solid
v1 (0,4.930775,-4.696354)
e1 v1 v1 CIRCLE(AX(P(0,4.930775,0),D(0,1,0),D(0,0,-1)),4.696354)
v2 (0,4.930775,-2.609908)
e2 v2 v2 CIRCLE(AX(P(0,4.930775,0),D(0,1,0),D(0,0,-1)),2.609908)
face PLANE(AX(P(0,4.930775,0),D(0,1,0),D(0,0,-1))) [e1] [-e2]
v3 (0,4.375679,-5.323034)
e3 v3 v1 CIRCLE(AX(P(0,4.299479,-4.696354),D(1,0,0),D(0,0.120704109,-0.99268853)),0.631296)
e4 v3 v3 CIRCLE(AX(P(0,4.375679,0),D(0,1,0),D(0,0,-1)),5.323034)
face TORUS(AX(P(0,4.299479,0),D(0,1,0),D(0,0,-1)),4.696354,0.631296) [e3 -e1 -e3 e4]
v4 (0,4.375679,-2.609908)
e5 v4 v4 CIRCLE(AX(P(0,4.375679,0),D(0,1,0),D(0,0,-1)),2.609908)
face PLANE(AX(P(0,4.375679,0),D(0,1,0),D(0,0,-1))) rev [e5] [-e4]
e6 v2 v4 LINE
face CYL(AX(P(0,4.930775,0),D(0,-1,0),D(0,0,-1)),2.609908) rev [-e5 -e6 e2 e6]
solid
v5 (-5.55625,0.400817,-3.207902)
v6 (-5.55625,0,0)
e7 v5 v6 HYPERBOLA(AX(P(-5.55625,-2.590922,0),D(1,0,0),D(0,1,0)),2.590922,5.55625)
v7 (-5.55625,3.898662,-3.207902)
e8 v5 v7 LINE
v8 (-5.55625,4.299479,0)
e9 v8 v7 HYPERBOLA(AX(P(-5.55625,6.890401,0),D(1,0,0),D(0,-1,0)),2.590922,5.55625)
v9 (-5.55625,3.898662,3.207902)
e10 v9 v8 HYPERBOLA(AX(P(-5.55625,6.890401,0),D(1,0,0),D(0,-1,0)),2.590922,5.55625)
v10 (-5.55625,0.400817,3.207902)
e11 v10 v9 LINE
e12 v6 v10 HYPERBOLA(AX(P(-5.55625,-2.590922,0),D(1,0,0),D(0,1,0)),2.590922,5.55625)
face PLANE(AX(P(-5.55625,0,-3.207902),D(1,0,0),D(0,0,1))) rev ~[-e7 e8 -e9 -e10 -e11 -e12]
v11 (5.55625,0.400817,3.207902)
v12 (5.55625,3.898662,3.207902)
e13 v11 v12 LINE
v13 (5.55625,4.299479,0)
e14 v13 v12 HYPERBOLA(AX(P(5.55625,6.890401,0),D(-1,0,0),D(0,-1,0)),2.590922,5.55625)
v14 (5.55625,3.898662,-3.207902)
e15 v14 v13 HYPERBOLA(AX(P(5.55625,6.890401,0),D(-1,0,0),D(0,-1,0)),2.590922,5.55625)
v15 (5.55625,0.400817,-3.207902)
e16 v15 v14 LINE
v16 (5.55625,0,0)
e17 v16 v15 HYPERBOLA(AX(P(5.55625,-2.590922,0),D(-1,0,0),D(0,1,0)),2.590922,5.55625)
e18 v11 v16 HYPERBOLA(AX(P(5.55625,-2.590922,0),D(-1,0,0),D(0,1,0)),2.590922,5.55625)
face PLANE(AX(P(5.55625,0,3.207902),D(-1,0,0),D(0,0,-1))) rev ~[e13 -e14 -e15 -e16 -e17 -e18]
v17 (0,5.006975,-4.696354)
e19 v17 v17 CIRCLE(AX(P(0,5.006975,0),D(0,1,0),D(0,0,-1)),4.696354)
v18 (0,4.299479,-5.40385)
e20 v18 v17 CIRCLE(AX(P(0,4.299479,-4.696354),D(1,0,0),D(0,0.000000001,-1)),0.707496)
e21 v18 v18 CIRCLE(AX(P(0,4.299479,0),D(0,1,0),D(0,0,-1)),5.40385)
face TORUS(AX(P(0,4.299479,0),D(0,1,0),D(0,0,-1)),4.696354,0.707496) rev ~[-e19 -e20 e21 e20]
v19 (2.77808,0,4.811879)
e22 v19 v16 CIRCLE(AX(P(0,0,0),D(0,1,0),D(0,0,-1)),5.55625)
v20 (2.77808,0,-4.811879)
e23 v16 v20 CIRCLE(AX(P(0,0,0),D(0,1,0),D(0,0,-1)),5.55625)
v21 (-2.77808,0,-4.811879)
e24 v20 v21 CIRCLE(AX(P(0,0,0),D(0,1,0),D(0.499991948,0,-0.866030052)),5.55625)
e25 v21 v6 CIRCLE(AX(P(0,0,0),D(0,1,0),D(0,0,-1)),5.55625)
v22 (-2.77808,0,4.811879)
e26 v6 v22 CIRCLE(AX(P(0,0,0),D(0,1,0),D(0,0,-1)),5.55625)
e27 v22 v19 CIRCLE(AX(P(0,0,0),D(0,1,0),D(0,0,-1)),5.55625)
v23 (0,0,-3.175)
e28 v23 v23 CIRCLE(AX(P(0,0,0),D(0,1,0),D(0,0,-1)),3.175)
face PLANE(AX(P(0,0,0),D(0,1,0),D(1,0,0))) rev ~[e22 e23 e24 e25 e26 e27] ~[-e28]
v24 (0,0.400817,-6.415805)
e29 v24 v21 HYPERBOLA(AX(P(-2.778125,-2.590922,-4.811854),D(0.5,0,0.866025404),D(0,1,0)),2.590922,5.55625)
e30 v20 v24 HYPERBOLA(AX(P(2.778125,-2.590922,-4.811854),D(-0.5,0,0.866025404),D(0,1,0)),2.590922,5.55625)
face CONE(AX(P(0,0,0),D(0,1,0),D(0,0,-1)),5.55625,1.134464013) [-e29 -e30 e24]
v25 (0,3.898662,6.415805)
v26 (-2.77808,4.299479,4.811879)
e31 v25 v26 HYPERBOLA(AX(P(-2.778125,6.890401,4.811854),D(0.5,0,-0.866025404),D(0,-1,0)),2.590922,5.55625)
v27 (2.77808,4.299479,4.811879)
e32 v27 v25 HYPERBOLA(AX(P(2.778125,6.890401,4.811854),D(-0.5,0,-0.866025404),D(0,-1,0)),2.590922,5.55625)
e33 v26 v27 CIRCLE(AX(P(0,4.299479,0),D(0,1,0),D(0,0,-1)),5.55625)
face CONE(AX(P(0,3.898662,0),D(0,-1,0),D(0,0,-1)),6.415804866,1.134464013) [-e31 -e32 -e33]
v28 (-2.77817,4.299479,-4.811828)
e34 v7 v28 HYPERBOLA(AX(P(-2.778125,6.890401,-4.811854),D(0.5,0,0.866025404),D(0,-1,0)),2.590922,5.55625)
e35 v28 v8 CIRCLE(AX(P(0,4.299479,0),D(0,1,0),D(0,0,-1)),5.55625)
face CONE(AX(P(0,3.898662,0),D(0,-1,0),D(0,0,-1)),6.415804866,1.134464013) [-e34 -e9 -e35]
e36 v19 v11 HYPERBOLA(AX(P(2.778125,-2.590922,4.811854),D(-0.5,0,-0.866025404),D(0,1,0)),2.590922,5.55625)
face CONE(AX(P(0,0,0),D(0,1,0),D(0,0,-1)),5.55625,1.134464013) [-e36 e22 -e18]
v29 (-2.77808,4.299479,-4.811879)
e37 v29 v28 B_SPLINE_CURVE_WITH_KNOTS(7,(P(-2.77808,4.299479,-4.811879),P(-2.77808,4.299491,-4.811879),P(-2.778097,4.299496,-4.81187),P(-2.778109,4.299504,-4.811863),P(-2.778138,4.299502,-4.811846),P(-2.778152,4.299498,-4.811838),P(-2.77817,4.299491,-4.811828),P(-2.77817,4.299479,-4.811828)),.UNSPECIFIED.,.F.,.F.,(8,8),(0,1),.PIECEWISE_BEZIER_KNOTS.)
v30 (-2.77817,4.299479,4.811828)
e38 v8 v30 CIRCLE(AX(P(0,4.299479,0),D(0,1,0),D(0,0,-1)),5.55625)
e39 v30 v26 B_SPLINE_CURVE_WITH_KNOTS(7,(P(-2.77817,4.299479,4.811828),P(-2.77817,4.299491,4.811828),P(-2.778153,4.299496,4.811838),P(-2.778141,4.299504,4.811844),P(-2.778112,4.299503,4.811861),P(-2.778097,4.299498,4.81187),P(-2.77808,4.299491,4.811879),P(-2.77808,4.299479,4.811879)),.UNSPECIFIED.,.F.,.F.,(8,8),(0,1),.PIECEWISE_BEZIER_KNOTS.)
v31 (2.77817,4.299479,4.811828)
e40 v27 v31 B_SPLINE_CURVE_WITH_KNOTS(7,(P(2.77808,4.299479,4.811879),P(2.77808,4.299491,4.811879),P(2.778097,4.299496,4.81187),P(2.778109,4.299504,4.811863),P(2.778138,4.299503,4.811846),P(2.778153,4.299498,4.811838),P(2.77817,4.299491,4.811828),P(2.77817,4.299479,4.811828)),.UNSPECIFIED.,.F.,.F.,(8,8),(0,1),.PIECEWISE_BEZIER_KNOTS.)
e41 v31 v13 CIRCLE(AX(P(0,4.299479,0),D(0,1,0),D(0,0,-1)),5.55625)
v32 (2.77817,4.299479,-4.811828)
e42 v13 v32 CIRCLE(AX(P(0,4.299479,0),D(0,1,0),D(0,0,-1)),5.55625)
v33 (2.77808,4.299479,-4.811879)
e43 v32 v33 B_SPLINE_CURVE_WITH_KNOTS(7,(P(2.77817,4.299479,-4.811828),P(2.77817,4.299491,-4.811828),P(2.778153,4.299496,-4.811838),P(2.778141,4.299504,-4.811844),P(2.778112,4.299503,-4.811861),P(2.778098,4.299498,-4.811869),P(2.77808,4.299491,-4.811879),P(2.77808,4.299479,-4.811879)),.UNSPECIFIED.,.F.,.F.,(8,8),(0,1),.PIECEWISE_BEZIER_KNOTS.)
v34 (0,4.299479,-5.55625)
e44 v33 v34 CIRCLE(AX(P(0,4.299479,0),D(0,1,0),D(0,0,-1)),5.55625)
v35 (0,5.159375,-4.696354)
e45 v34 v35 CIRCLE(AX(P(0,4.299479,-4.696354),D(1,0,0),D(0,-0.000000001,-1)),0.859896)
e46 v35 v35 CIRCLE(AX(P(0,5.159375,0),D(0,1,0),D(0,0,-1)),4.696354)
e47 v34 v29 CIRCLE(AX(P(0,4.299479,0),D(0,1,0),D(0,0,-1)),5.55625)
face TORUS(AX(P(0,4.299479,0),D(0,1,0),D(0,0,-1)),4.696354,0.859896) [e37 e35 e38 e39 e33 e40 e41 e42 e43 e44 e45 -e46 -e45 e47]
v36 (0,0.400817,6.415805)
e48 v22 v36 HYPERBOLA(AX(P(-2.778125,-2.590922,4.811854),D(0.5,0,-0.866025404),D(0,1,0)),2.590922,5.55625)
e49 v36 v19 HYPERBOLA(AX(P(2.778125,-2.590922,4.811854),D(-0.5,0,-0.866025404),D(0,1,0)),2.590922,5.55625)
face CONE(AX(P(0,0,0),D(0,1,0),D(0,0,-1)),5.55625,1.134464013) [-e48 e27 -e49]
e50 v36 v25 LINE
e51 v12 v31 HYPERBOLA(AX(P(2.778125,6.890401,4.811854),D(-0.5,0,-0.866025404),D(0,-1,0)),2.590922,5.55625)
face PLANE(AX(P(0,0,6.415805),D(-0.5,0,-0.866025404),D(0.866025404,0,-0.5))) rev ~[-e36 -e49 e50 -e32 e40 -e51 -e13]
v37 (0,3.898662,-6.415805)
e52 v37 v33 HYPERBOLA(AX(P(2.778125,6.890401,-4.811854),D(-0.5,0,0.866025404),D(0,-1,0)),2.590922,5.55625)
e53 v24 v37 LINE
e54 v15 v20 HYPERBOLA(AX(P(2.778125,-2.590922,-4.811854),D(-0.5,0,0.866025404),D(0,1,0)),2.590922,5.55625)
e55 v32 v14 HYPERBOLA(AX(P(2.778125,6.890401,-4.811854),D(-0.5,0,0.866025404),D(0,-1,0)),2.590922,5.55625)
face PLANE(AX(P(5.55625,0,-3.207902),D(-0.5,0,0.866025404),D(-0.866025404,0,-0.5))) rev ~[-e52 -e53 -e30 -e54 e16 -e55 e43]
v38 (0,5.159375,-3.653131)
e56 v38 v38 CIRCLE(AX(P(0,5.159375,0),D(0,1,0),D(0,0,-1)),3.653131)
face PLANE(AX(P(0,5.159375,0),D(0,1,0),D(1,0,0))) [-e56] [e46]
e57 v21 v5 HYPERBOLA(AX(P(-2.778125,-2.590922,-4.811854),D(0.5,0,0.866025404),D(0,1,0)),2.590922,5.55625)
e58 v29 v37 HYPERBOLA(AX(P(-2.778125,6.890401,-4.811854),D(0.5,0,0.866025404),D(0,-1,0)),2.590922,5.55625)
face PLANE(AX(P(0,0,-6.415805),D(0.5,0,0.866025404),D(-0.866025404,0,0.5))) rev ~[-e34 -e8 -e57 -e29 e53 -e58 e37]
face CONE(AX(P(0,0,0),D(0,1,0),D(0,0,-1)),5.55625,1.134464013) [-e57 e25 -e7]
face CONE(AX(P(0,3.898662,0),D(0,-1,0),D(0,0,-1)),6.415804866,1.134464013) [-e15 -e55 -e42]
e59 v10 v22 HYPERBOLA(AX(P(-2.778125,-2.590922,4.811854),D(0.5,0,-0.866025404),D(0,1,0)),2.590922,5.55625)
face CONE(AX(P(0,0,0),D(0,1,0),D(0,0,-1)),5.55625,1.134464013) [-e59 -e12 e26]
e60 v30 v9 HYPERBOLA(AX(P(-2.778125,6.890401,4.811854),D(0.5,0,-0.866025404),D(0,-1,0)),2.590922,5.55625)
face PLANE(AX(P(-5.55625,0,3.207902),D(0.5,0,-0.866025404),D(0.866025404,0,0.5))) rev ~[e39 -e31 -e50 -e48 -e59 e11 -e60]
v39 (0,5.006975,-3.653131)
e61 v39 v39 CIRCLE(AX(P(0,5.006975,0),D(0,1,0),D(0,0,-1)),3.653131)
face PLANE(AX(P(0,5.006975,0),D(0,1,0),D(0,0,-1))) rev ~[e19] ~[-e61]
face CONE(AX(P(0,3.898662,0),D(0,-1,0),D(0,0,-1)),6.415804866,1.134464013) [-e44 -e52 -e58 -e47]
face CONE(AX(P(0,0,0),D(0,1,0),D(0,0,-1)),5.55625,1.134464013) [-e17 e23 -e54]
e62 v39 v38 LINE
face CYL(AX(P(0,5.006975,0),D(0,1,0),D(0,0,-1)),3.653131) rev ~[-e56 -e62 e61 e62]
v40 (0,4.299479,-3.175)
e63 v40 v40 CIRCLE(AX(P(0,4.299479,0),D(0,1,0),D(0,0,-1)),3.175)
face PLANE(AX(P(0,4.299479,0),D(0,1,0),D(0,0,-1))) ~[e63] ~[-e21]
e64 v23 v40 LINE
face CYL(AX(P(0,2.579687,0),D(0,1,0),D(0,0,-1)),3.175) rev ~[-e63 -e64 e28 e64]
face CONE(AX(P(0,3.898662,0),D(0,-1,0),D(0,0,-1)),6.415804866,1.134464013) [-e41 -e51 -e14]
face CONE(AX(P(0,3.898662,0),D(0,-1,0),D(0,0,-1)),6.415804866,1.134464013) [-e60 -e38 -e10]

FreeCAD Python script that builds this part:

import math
import FreeCAD as App
import Part
import Sketcher
from FreeCAD import Vector
Q = App.Units.Quantity

doc = App.newDocument("Part")
body = doc.addObject("PartDesign::Body", "Body")

sketch1 = body.newObject("Sketcher::SketchObject", "Sketch")
sketch1.AttachmentSupport = (doc.getObject("XZ_Plane"), [""])
sketch1.MapMode = "FlatFace"
sketch1.addGeometry([
    Part.LineSegment(Vector(0, -6, 0), Vector(-6, -3, 0)),
    Part.LineSegment(Vector(-6, -3, 0), Vector(-6, 3, 0)),
    Part.LineSegment(Vector(-6, 3, 0), Vector(0, 6, 0)),
    Part.LineSegment(Vector(0, 6, 0), Vector(6, 3, 0)),
    Part.LineSegment(Vector(6, 3, 0), Vector(6, -3, 0)),
    Part.LineSegment(Vector(6, -3, 0), Vector(0, -6, 0)),
], False)
sketch1.addConstraint([
    Sketcher.Constraint("Coincident", 0, 2, 1, 1),
    Sketcher.Constraint("Coincident", 1, 2, 2, 1),
    Sketcher.Constraint("Coincident", 2, 2, 3, 1),
    Sketcher.Constraint("Coincident", 3, 2, 4, 1),
    Sketcher.Constraint("Coincident", 4, 2, 5, 1),
    Sketcher.Constraint("Coincident", 5, 2, 0, 1),
    Sketcher.Constraint("Vertical", 1),
    Sketcher.Constraint("Vertical", 4),
    Sketcher.Constraint("Symmetric", 0, 2, 3, 2, -1, 1),
    Sketcher.Constraint("Symmetric", 2, 2, 5, 2, -1, 1),
    Sketcher.Constraint("PointOnObject", 2, 2, -2),
    Sketcher.Constraint("Parallel", 2, 5),
    Sketcher.Constraint("Horizontal", 1, 2, 3, 2),
    Sketcher.Constraint("Angle", 0, Q("150 deg")),
    Sketcher.Constraint("DistanceX", 0, 2, -1, 1, Q("0.21875 in")),
    Sketcher.Constraint("DistanceY", 1, 1, 1, 2, 6.415805),
])
pad1 = body.newObject("PartDesign::Pad", "Pad")
pad1.Profile = sketch1
pad1.Length = Q("0.203125 in")
pad1.Reversed = True
body2 = doc.addObject("PartDesign::Body", "Body001")

sketch2 = body2.newObject("Sketcher::SketchObject", "Sketch001")
sketch2.AttachmentSupport = (doc.getObject("YZ_Plane001"), [""])
sketch2.MapMode = "FlatFace"
sketch2.addGeometry([
    Part.LineSegment(Vector(5.2, 0, 0), Vector(0, 0, 0)),
    Part.LineSegment(Vector(0, 0, 0), Vector(0, -3.2, 0)),
    Part.LineSegment(Vector(0, -3.2, 0), Vector(5.2, -3.2, 0)),
    Part.LineSegment(Vector(5.2, -3.2, 0), Vector(5.2, 0, 0)),
], False)
sketch2.addConstraint([
    Sketcher.Constraint("Coincident", 0, 2, 1, 1),
    Sketcher.Constraint("Coincident", 1, 2, 2, 1),
    Sketcher.Constraint("Coincident", 2, 2, 3, 1),
    Sketcher.Constraint("Coincident", 3, 2, 0, 1),
    Sketcher.Constraint("Horizontal", 0),
    Sketcher.Constraint("Vertical", 1),
    Sketcher.Constraint("Horizontal", 2),
    Sketcher.Constraint("Vertical", 3),
    Sketcher.Constraint("Coincident", 0, 2, -1, 1),
    Sketcher.Constraint("DistanceX", 0, 2, 0, 1, Q("0.203125 in")),
    Sketcher.Constraint("DistanceY", 1, 2, 1, 1, Q("0.125 in")),
])
revolution = body2.newObject("PartDesign::Revolution", "Revolution")
revolution.Profile = sketch2
revolution.ReferenceAxis = (sketch2, ["H_Axis"])
revolution.Angle = 360
doc.recompute()

boolean = body.newObject("PartDesign::Boolean", "Boolean")
boolean.Type = "Cut"
boolean.addObjects([body2])

sketch3 = body.newObject("Sketcher::SketchObject", "Sketch002")
sketch3.AttachmentSupport = (doc.getObject("YZ_Plane"), [""])
sketch3.MapMode = "FlatFace"
sketch3.addGeometry([
    Part.LineSegment(Vector(0, -5.6, 0), Vector(0, 0, 0)),
    Part.LineSegment(Vector(0, 0, 0), Vector(-1.3, 0, 0)),
    Part.LineSegment(Vector(-1.3, 0, 0), Vector(-1.3, -7.7, 0)),
    Part.LineSegment(Vector(-1.3, -7.7, 0), Vector(6.4, -7.7, 0)),
    Part.LineSegment(Vector(6.4, -7.7, 0), Vector(6.4, -4.7, 0)),
    Part.LineSegment(Vector(6.4, -4.7, 0), Vector(5.2, -4.7, 0)),
    Part.ArcOfCircle(Part.Circle(Vector(4.3, -4.7, 0), Vector(0, 0, 1), 0.9), math.radians(-90), math.radians(0)),
    Part.LineSegment(Vector(4.3, -5.6, 0), Vector(3.9, -6.4, 0)),
    Part.LineSegment(Vector(3.9, -6.4, 0), Vector(0.4, -6.4, 0)),
    Part.LineSegment(Vector(0.4, -6.4, 0), Vector(0, -5.6, 0)),
], False)
sketch3.addConstraint([
    Sketcher.Constraint("Coincident", 0, 2, 1, 1),
    Sketcher.Constraint("Coincident", 1, 2, 2, 1),
    Sketcher.Constraint("Coincident", 2, 2, 3, 1),
    Sketcher.Constraint("Coincident", 3, 2, 4, 1),
    Sketcher.Constraint("Coincident", 4, 2, 5, 1),
    Sketcher.Constraint("Coincident", 5, 2, 6, 2),
    Sketcher.Constraint("Coincident", 6, 1, 7, 1),
    Sketcher.Constraint("Coincident", 7, 2, 8, 1),
    Sketcher.Constraint("Coincident", 8, 2, 9, 1),
    Sketcher.Constraint("Coincident", 9, 2, 0, 1),
    Sketcher.Constraint("Vertical", 0),
    Sketcher.Constraint("Horizontal", 1),
    Sketcher.Constraint("Vertical", 2),
    Sketcher.Constraint("Horizontal", 3),
    Sketcher.Constraint("Vertical", 4),
    Sketcher.Constraint("Horizontal", 5),
    Sketcher.Constraint("Horizontal", 8),
    Sketcher.Constraint("Coincident", 0, 2, -1, 1),
    Sketcher.Constraint("Horizontal", 6, 3, 4, 2),
    Sketcher.Constraint("Horizontal", 6, 1, 9, 2),
    Sketcher.Constraint("Equal", 1, 5),
    Sketcher.Constraint("Equal", 7, 9),
    Sketcher.Constraint("Angle", 7, Q("-115 deg")),
    Sketcher.Constraint("DistanceX", 1, 2, 1, 1, Q("0.05 in")),
    Sketcher.Constraint("DistanceY", 0, 1, 0, 2, Q("0.21875 in")),
    Sketcher.Constraint("DistanceY", 3, 2, 7, 2, Q("0.05 in")),
    Sketcher.Constraint("DistanceX", -1, 1, 5, 2, Q("0.203125 in")),
    Sketcher.Constraint("Radius", 6, 0.859896),
    Sketcher.Constraint("DistanceY", 4, 1, 4, 2, 2.989451),
    Sketcher.Constraint("DistanceX", 8, 2, 8, 1, 3.497845),
])
groove = body.newObject("PartDesign::Groove", "Groove")
groove.Profile = sketch3
groove.ReferenceAxis = (sketch3, ["H_Axis"])
groove.Angle = 360

sketch4 = body.newObject("Sketcher::SketchObject", "Sketch003")
sketch4.AttachmentSupport = (doc.getObject("YZ_Plane"), [""])
sketch4.MapMode = "FlatFace"
sketch4.addGeometry([
    Part.LineSegment(Vector(4.3, 0, 0), Vector(4.3, -5.4, 0)),
    Part.ArcOfCircle(Part.Circle(Vector(4.3, -4.7, 0), Vector(0, 0, 1), 0.7), math.radians(-90), math.radians(0)),
    Part.LineSegment(Vector(5, -4.7, 0), Vector(5, -3.7, 0)),
    Part.LineSegment(Vector(5, -3.7, 0), Vector(6.4, -3.7, 0)),
    Part.LineSegment(Vector(6.4, -3.7, 0), Vector(6.4, 0, 0)),
    Part.LineSegment(Vector(6.4, 0, 0), Vector(4.3, 0, 0)),
], False)
sketch4.addConstraint([
    Sketcher.Constraint("Coincident", 0, 2, 1, 1),
    Sketcher.Constraint("Tangent", 1, 2, 2, 1),
    Sketcher.Constraint("Coincident", 2, 2, 3, 1),
    Sketcher.Constraint("Coincident", 3, 2, 4, 1),
    Sketcher.Constraint("Coincident", 4, 2, 5, 1),
    Sketcher.Constraint("Coincident", 5, 2, 0, 1),
    Sketcher.Constraint("Vertical", 0),
    Sketcher.Constraint("Vertical", 2),
    Sketcher.Constraint("Horizontal", 3),
    Sketcher.Constraint("Vertical", 4),
    Sketcher.Constraint("Horizontal", 5),
    Sketcher.Constraint("PointOnObject", 4, 2, -1),
    Sketcher.Constraint("Vertical", 1, 3, 0, 2),
    Sketcher.Constraint("DistanceX", 3, 1, 3, 2, Q("0.056 in")),
    Sketcher.Constraint("Radius", 1, 0.707496),
    Sketcher.Constraint("DistanceY", 0, 2, 0, 1, 5.40385),
    Sketcher.Constraint("DistanceY", 4, 1, 4, 2, 3.653131),
    Sketcher.Constraint("DistanceX", -1, 1, 1, 3, 4.299479),
])
groove2 = body.newObject("PartDesign::Groove", "Groove001")
groove2.Profile = sketch4
groove2.ReferenceAxis = (sketch4, ["H_Axis"])
groove2.Angle = 360
body3 = doc.addObject("PartDesign::Body", "Body002")

sketch5 = body3.newObject("Sketcher::SketchObject", "Sketch004")
sketch5.AttachmentSupport = (doc.getObject("YZ_Plane002"), [""])
sketch5.MapMode = "FlatFace"
sketch5.addGeometry([
    Part.LineSegment(Vector(4.4, -2.6, 0), Vector(4.4, -5.3, 0)),
    Part.ArcOfCircle(Part.Circle(Vector(4.3, -4.7, 0), Vector(0, 0, 1), 0.6), math.radians(-83), math.radians(0)),
    Part.LineSegment(Vector(4.9, -4.7, 0), Vector(4.9, -2.6, 0)),
    Part.LineSegment(Vector(4.9, -2.6, 0), Vector(4.4, -2.6, 0)),
], False)
sketch5.addConstraint([
    Sketcher.Constraint("Coincident", 0, 2, 1, 1),
    Sketcher.Constraint("Tangent", 1, 2, 2, 1),
    Sketcher.Constraint("Coincident", 2, 2, 3, 1),
    Sketcher.Constraint("Coincident", 3, 2, 0, 1),
    Sketcher.Constraint("Vertical", 0),
    Sketcher.Constraint("Vertical", 2),
    Sketcher.Constraint("Horizontal", 3),
    Sketcher.Constraint("DistanceX", 1, 3, 0, 2, Q("0.003 in")),
    Sketcher.Constraint("Radius", 1, 0.631296),
    Sketcher.Constraint("DistanceY", 0, 2, 0, 1, 2.713126),
    Sketcher.Constraint("DistanceX", -1, 1, 1, 3, 4.299479),
    Sketcher.Constraint("DistanceY", 2, 2, -1, 1, 2.609908),
])
revolution2 = body3.newObject("PartDesign::Revolution", "Revolution001")
revolution2.Profile = sketch5
revolution2.ReferenceAxis = (sketch5, ["H_Axis"])
revolution2.Angle = 360

doc.recompute()
